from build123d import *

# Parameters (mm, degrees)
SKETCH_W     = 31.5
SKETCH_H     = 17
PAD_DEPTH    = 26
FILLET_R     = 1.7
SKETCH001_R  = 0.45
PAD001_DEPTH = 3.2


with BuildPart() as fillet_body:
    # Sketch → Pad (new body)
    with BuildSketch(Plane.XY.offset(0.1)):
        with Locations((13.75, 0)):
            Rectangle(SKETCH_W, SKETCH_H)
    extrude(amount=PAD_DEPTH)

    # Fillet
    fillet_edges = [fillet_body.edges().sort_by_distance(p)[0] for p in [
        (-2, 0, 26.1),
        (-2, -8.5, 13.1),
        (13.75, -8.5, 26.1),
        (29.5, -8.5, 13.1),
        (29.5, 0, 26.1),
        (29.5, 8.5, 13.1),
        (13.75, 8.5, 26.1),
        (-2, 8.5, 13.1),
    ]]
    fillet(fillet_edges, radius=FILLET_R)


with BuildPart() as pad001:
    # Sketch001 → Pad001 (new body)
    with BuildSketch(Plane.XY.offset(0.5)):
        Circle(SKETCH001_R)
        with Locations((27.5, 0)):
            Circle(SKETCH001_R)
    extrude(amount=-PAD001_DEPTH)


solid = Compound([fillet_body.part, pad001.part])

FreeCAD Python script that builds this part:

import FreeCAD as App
import Part
import Sketcher

V = App.Vector
Q = App.Units.Quantity


def edges_at(feature, points):
    """Names of the edges that pass closest to the given points."""
    edges = feature.Shape.Edges
    near = lambda p: min(range(len(edges)), key=lambda i: edges[i].distToShape(Part.Vertex(*p))[0])
    return sorted({f"Edge{near(p) + 1}" for p in points})


def add_polygon(sketch, points):
    """Adds a closed chain of lines whose ends are joined by coincident constraints."""
    first, n = sketch.GeometryCount, len(points)
    for a, b in zip(points, points[1:] + points[:1]):
        sketch.addGeometry(Part.LineSegment(App.Vector(*a, 0), App.Vector(*b, 0)), False)
    for i in range(n):
        sketch.addConstraint(Sketcher.Constraint("Coincident", first + i, 2, first + (i + 1) % n, 1))

doc = App.newDocument("Part")
body = doc.addObject("PartDesign::Body", "Body")

# Sketch on XY plane
sketch1 = body.newObject("Sketcher::SketchObject", "Sketch")
sketch1.AttachmentSupport = (doc.getObject("XY_Plane"), [""])
sketch1.MapMode = "FlatFace"
sketch1.AttachmentOffset = App.Placement(V(0, 0, 0.1), App.Rotation())
add_polygon(sketch1, [(-2, 8.5), (-2, -8.5), (29.5, -8.5), (29.5, 8.5)])  # lines 0-3
sketch1.addConstraint(Sketcher.Constraint("Vertical", 0))
sketch1.addConstraint(Sketcher.Constraint("Horizontal", 1))
sketch1.addConstraint(Sketcher.Constraint("Vertical", 2))
sketch1.addConstraint(Sketcher.Constraint("Horizontal", 3))
sketch1.addConstraint(Sketcher.Constraint("DistanceY", 0, 2, 0, 1, Q("17 mm")))
sketch1.addConstraint(Sketcher.Constraint("DistanceX", 1, 1, 1, 2, Q("31.5 mm")))
sketch1.addConstraint(Sketcher.Constraint("DistanceX", 0, 2, -1, 1, Q("2 mm")))
sketch1.addConstraint(Sketcher.Constraint("DistanceY", 0, 2, -1, 1, Q("8.5 mm")))
pad1 = body.newObject("PartDesign::Pad", "Pad")
pad1.Profile = sketch1
pad1.Length = 26
doc.recompute()

fillet = body.newObject("PartDesign::Fillet", "Fillet")
fillet.Base = (pad1, edges_at(pad1, [
    (-2, 0, 26.1),
    (-2, -8.5, 13.1),
    (13.75, -8.5, 26.1),
    (29.5, -8.5, 13.1),
    (29.5, 0, 26.1),
    (29.5, 8.5, 13.1),
    (13.75, 8.5, 26.1),
    (-2, 8.5, 13.1),
]))
fillet.Radius = 1.7
body2 = doc.addObject("PartDesign::Body", "Body001")
body2.AllowCompound = True

# Sketch on XY plane
sketch2 = body2.newObject("Sketcher::SketchObject", "Sketch001")
sketch2.AttachmentSupport = (doc.getObject("XY_Plane001"), [""])
sketch2.MapMode = "FlatFace"
sketch2.AttachmentOffset = App.Placement(V(0, 0, 0.5), App.Rotation())
sketch2.addGeometry(Part.Circle(V(0, 0, 0), V(0, 0, 1), 0.45), False)
sketch2.addGeometry(Part.Circle(V(27.5, 0, 0), V(0, 0, 1), 0.45), False)
sketch2.addConstraint(Sketcher.Constraint("Coincident", 0, 3, -1, 1))
sketch2.addConstraint(Sketcher.Constraint("Equal", 0, 1))
sketch2.addConstraint(Sketcher.Constraint("PointOnObject", 1, 3, -1))
sketch2.addConstraint(Sketcher.Constraint("Diameter", 0, Q("0.9 mm")))
sketch2.addConstraint(Sketcher.Constraint("DistanceX", -1, 1, 1, 3, Q("27.5 mm")))
pad2 = body2.newObject("PartDesign::Pad", "Pad001")
pad2.Profile = sketch2
pad2.Length = 3.2
pad2.Reversed = True

doc.recompute()
